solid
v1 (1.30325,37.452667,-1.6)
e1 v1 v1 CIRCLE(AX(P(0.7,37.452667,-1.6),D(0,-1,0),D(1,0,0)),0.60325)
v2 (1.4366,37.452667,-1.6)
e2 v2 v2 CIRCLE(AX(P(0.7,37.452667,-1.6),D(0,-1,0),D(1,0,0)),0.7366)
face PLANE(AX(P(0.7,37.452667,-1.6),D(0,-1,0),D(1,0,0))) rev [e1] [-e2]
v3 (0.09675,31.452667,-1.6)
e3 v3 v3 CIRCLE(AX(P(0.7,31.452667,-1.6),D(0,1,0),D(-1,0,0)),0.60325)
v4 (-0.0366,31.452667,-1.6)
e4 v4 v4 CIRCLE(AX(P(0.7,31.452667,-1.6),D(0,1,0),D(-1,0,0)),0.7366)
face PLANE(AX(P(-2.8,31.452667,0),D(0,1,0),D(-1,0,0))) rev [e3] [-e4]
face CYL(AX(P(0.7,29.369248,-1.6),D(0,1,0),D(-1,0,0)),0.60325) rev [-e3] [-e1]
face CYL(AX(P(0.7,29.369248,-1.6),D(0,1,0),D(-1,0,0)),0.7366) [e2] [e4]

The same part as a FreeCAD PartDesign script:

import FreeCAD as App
import Part
import Sketcher

doc = App.newDocument("Part")
params = doc.addObject("Spreadsheet::Sheet", "Params")
for row, (alias, value) in enumerate([
    ("pad1_length", "6 mm"),
], start=1):
    params.set(f"A{row}", alias)
    params.set(f"B{row}", "=" + value)
    params.setAlias(f"B{row}", alias)

body = doc.addObject("PartDesign::Body", "Body")

# Sketch on XZ plane
sketch1 = body.newObject("Sketcher::SketchObject", "Sketch")
sketch1.AttachmentSupport = (doc.getObject("XZ_Plane"), [""])
sketch1.MapMode = "FlatFace"
sketch1.AttachmentOffset = App.Placement(App.Vector(0, 0, -37.452667), App.Rotation())
sketch1.addGeometry(Part.Circle(App.Vector(0.7, -1.6, 0), App.Vector(0, 0, 1), 0.7), False)
sketch1.addGeometry(Part.Circle(App.Vector(0.7, -1.6, 0), App.Vector(0, 0, 1), 0.6), False)
sketch1.addConstraint(Sketcher.Constraint("Coincident", 1, 3, 0, 3))
sketch1.addConstraint(Sketcher.Constraint("Diameter", 0, 1.4732))
sketch1.addConstraint(Sketcher.Constraint("Diameter", 1, 1.2065))
sketch1.addConstraint(Sketcher.Constraint("DistanceX", -1, 1, 0, 3, 0.7))
sketch1.addConstraint(Sketcher.Constraint("DistanceY", 0, 3, -1, 1, 1.6))
pad1 = body.newObject("PartDesign::Pad", "Pad")
pad1.Profile = sketch1
pad1.setExpression("Length", "Params.pad1_length")

doc.recompute()
